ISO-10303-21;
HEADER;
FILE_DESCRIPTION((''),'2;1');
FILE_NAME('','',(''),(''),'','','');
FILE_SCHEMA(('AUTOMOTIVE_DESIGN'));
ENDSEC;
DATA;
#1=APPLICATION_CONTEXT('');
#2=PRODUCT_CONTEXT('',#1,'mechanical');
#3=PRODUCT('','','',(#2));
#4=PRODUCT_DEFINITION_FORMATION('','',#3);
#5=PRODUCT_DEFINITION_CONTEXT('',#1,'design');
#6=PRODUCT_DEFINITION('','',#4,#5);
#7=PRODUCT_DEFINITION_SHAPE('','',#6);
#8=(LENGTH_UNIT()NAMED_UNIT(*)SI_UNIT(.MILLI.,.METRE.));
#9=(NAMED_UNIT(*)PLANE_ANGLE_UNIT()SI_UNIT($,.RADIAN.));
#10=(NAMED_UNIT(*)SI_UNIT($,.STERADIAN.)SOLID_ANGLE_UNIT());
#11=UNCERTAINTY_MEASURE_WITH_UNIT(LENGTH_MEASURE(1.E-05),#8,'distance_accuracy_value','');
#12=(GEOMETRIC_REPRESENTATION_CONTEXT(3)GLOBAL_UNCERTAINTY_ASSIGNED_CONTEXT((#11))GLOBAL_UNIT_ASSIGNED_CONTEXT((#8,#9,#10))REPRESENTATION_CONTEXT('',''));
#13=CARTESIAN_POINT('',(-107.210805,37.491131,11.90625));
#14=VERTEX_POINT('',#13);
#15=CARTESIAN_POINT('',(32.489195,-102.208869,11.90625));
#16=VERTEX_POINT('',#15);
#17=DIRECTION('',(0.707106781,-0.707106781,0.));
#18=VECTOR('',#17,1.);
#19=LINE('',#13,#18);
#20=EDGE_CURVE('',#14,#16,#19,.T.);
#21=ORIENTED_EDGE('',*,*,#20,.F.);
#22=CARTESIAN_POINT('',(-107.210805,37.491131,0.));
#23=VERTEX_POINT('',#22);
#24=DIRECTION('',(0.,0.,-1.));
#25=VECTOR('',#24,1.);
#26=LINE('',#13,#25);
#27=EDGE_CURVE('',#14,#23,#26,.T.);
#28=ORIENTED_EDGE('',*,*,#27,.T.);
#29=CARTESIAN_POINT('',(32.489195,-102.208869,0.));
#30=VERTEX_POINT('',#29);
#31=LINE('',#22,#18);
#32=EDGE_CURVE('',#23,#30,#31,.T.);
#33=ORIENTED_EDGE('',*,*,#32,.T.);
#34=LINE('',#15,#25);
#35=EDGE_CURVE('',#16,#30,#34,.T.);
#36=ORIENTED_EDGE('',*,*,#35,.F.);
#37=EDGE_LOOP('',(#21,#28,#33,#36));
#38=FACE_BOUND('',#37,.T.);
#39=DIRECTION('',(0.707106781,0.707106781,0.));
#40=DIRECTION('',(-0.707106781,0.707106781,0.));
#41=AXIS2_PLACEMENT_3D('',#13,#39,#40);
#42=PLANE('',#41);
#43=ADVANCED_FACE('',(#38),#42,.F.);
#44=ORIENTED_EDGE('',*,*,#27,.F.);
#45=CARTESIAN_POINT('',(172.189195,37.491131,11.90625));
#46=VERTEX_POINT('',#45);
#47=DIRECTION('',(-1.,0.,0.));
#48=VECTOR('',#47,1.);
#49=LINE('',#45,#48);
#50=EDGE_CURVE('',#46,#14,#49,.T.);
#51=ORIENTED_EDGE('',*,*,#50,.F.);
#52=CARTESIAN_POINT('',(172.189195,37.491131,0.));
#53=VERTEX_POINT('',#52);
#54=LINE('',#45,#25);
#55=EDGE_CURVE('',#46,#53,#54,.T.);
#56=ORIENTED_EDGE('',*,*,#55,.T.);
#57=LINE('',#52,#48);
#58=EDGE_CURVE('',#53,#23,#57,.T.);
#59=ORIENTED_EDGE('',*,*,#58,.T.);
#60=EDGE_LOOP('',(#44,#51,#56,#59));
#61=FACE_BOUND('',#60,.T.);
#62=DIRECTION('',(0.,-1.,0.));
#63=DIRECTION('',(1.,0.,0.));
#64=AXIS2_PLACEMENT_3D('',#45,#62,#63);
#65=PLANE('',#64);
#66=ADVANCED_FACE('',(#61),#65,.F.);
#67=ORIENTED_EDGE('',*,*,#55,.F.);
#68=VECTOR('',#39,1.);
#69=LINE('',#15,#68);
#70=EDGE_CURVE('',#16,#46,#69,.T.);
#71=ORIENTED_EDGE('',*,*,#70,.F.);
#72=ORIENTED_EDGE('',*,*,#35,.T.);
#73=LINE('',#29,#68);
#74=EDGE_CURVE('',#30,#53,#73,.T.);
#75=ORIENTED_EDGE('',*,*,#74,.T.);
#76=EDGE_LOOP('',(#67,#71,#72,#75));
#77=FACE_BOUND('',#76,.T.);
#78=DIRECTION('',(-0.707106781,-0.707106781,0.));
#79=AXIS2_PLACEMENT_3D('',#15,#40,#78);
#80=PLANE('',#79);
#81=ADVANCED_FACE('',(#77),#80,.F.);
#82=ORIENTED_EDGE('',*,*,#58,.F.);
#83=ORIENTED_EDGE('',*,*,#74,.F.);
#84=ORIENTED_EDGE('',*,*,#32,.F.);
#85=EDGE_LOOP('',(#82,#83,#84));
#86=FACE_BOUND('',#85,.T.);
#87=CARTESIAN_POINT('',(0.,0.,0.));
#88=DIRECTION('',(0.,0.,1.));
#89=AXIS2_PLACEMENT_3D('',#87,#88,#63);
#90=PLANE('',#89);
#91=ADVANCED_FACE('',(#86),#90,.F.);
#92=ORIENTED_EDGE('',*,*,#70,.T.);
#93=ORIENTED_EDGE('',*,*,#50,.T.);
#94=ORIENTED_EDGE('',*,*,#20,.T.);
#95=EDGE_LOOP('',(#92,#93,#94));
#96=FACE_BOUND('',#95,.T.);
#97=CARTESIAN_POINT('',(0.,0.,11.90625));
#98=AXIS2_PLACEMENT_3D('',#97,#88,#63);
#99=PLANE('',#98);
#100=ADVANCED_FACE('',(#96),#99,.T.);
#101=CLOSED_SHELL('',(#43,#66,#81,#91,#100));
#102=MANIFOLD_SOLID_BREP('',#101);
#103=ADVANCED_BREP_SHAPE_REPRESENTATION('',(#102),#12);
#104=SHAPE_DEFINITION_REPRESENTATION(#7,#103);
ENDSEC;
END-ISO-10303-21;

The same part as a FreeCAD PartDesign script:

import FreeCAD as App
import Part
import Sketcher
Q = App.Units.Quantity


def add_polygon(sketch, points):
    """Adds a closed chain of lines whose ends are joined by coincident constraints."""
    first, n = sketch.GeometryCount, len(points)
    for a, b in zip(points, points[1:] + points[:1]):
        sketch.addGeometry(Part.LineSegment(App.Vector(*a, 0), App.Vector(*b, 0)), False)
    for i in range(n):
        sketch.addConstraint(Sketcher.Constraint("Coincident", first + i, 2, first + (i + 1) % n, 1))

doc = App.newDocument("Part")
body = doc.addObject("PartDesign::Body", "Body")

sketch1 = body.newObject("Sketcher::SketchObject", "Sketch")
sketch1.AttachmentSupport = (doc.getObject("XY_Plane"), [""])
sketch1.MapMode = "FlatFace"
add_polygon(sketch1, [(-107, 37), (32, -102), (172, 37)])
sketch1.addConstraint([
    Sketcher.Constraint("Horizontal", 2),
    Sketcher.Constraint("Perpendicular", 0, 1),
    Sketcher.Constraint("Equal", 0, 1),
    Sketcher.Constraint("DistanceX", 2, 2, 2, 1, Q("11 in")),
    Sketcher.Constraint("DistanceY", 0, 2, -1, 1, 102.208869),
    Sketcher.Constraint("DistanceX", -1, 1, 0, 2, 32.489195),
])
pad1 = body.newObject("PartDesign::Pad", "Pad")
pad1.Profile = sketch1
pad1.Length = Q("0.46875 in")

doc.recompute()
